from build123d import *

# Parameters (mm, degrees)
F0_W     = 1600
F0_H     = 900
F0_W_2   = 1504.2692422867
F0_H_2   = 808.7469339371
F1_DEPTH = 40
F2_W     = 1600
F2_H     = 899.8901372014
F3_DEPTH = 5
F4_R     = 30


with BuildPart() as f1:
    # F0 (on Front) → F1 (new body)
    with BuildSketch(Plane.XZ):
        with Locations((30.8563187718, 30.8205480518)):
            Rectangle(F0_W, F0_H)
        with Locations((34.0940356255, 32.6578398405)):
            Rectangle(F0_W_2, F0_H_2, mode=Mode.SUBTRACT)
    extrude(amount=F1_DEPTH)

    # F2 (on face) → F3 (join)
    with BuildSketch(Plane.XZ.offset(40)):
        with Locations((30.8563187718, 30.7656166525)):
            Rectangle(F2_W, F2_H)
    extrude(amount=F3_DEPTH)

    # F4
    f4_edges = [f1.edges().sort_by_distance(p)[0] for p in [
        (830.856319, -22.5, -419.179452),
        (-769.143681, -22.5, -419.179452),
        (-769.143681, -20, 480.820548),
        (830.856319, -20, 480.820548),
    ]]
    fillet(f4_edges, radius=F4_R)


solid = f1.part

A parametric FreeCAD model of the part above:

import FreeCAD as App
import Part
import Sketcher


def edges_at(feature, points):
    """Names of the edges that pass closest to the given points."""
    edges = feature.Shape.Edges
    near = lambda p: min(range(len(edges)), key=lambda i: edges[i].distToShape(Part.Vertex(*p))[0])
    return sorted({f"Edge{near(p) + 1}" for p in points})

doc = App.newDocument("Part")
body = doc.addObject("PartDesign::Body", "Body")

sketch1 = body.newObject("Sketcher::SketchObject", "Sketch")
sketch1.AttachmentSupport = (doc.getObject("XZ_Plane"), [""])
sketch1.MapMode = "FlatFace"
sketch1.addGeometry([
    Part.LineSegment(App.Vector(-769, 481, 0), App.Vector(-769, -419, 0)),
    Part.LineSegment(App.Vector(-769, -419, 0), App.Vector(831, -419, 0)),
    Part.LineSegment(App.Vector(831, -419, 0), App.Vector(831, 481, 0)),
    Part.LineSegment(App.Vector(831, 481, 0), App.Vector(-769, 481, 0)),
    Part.LineSegment(App.Vector(786, -372, 0), App.Vector(-718, -372, 0)),
    Part.LineSegment(App.Vector(-718, -372, 0), App.Vector(-718, 437, 0)),
    Part.LineSegment(App.Vector(-718, 437, 0), App.Vector(786, 437, 0)),
    Part.LineSegment(App.Vector(786, 437, 0), App.Vector(786, -372, 0)),
], False)
sketch1.addConstraint([
    Sketcher.Constraint("Coincident", 0, 2, 1, 1),
    Sketcher.Constraint("Coincident", 1, 2, 2, 1),
    Sketcher.Constraint("Coincident", 2, 2, 3, 1),
    Sketcher.Constraint("Coincident", 3, 2, 0, 1),
    Sketcher.Constraint("Coincident", 4, 2, 5, 1),
    Sketcher.Constraint("Coincident", 5, 2, 6, 1),
    Sketcher.Constraint("Coincident", 6, 2, 7, 1),
    Sketcher.Constraint("Coincident", 7, 2, 4, 1),
    Sketcher.Constraint("Vertical", 0),
    Sketcher.Constraint("Horizontal", 1),
    Sketcher.Constraint("Vertical", 2),
    Sketcher.Constraint("Horizontal", 3),
    Sketcher.Constraint("Horizontal", 4),
    Sketcher.Constraint("Vertical", 5),
    Sketcher.Constraint("Horizontal", 6),
    Sketcher.Constraint("Vertical", 7),
    Sketcher.Constraint("DistanceX", 1, 1, 1, 2, 1600.0),
    Sketcher.Constraint("DistanceY", 0, 2, 0, 1, 900.0),
    Sketcher.Constraint("DistanceX", 4, 2, 4, 1, 1504.269242),
    Sketcher.Constraint("DistanceY", 5, 1, 5, 2, 808.746934),
    Sketcher.Constraint("DistanceX", 0, 2, -1, 1, 769.143681),
    Sketcher.Constraint("DistanceY", 0, 2, -1, 1, 419.179452),
    Sketcher.Constraint("DistanceY", 5, 2, 3, 2, 43.789241),
    Sketcher.Constraint("DistanceX", 4, 2, -1, 1, 718.040586),
])
pad1 = body.newObject("PartDesign::Pad", "Pad")
pad1.Profile = sketch1
pad1.Length = 40

sketch2 = body.newObject("Sketcher::SketchObject", "Sketch001")
sketch2.AttachmentSupport = (doc.getObject("XZ_Plane"), [""])
sketch2.MapMode = "FlatFace"
sketch2.AttachmentOffset = App.Placement(App.Vector(0, 0, 40), App.Rotation())
sketch2.addGeometry([
    Part.LineSegment(App.Vector(-769, 481, 0), App.Vector(-769, -419, 0)),
    Part.LineSegment(App.Vector(-769, -419, 0), App.Vector(831, -419, 0)),
    Part.LineSegment(App.Vector(831, -419, 0), App.Vector(831, 481, 0)),
    Part.LineSegment(App.Vector(831, 481, 0), App.Vector(-769, 481, 0)),
], False)
sketch2.addConstraint([
    Sketcher.Constraint("Coincident", 0, 2, 1, 1),
    Sketcher.Constraint("Coincident", 1, 2, 2, 1),
    Sketcher.Constraint("Coincident", 2, 2, 3, 1),
    Sketcher.Constraint("Coincident", 3, 2, 0, 1),
    Sketcher.Constraint("Vertical", 0),
    Sketcher.Constraint("Horizontal", 1),
    Sketcher.Constraint("Vertical", 2),
    Sketcher.Constraint("Horizontal", 3),
    Sketcher.Constraint("DistanceX", 1, 1, 1, 2, 1600.0),
    Sketcher.Constraint("DistanceY", 0, 2, 0, 1, 899.890137),
    Sketcher.Constraint("DistanceX", 0, 2, -1, 1, 769.143681),
    Sketcher.Constraint("DistanceY", 0, 2, -1, 1, 419.179452),
])
pad2 = body.newObject("PartDesign::Pad", "Pad001")
pad2.Profile = sketch2
pad2.Length = 5
doc.recompute()

fillet = body.newObject("PartDesign::Fillet", "Fillet")
fillet.Base = (pad2, edges_at(pad2, [
    (830.856, -22.5, -419.179),
    (-769.144, -22.5, -419.179),
    (-769.144, -20, 480.821),
    (830.856, -20, 480.821),
]))
fillet.Radius = 30

doc.recompute()
